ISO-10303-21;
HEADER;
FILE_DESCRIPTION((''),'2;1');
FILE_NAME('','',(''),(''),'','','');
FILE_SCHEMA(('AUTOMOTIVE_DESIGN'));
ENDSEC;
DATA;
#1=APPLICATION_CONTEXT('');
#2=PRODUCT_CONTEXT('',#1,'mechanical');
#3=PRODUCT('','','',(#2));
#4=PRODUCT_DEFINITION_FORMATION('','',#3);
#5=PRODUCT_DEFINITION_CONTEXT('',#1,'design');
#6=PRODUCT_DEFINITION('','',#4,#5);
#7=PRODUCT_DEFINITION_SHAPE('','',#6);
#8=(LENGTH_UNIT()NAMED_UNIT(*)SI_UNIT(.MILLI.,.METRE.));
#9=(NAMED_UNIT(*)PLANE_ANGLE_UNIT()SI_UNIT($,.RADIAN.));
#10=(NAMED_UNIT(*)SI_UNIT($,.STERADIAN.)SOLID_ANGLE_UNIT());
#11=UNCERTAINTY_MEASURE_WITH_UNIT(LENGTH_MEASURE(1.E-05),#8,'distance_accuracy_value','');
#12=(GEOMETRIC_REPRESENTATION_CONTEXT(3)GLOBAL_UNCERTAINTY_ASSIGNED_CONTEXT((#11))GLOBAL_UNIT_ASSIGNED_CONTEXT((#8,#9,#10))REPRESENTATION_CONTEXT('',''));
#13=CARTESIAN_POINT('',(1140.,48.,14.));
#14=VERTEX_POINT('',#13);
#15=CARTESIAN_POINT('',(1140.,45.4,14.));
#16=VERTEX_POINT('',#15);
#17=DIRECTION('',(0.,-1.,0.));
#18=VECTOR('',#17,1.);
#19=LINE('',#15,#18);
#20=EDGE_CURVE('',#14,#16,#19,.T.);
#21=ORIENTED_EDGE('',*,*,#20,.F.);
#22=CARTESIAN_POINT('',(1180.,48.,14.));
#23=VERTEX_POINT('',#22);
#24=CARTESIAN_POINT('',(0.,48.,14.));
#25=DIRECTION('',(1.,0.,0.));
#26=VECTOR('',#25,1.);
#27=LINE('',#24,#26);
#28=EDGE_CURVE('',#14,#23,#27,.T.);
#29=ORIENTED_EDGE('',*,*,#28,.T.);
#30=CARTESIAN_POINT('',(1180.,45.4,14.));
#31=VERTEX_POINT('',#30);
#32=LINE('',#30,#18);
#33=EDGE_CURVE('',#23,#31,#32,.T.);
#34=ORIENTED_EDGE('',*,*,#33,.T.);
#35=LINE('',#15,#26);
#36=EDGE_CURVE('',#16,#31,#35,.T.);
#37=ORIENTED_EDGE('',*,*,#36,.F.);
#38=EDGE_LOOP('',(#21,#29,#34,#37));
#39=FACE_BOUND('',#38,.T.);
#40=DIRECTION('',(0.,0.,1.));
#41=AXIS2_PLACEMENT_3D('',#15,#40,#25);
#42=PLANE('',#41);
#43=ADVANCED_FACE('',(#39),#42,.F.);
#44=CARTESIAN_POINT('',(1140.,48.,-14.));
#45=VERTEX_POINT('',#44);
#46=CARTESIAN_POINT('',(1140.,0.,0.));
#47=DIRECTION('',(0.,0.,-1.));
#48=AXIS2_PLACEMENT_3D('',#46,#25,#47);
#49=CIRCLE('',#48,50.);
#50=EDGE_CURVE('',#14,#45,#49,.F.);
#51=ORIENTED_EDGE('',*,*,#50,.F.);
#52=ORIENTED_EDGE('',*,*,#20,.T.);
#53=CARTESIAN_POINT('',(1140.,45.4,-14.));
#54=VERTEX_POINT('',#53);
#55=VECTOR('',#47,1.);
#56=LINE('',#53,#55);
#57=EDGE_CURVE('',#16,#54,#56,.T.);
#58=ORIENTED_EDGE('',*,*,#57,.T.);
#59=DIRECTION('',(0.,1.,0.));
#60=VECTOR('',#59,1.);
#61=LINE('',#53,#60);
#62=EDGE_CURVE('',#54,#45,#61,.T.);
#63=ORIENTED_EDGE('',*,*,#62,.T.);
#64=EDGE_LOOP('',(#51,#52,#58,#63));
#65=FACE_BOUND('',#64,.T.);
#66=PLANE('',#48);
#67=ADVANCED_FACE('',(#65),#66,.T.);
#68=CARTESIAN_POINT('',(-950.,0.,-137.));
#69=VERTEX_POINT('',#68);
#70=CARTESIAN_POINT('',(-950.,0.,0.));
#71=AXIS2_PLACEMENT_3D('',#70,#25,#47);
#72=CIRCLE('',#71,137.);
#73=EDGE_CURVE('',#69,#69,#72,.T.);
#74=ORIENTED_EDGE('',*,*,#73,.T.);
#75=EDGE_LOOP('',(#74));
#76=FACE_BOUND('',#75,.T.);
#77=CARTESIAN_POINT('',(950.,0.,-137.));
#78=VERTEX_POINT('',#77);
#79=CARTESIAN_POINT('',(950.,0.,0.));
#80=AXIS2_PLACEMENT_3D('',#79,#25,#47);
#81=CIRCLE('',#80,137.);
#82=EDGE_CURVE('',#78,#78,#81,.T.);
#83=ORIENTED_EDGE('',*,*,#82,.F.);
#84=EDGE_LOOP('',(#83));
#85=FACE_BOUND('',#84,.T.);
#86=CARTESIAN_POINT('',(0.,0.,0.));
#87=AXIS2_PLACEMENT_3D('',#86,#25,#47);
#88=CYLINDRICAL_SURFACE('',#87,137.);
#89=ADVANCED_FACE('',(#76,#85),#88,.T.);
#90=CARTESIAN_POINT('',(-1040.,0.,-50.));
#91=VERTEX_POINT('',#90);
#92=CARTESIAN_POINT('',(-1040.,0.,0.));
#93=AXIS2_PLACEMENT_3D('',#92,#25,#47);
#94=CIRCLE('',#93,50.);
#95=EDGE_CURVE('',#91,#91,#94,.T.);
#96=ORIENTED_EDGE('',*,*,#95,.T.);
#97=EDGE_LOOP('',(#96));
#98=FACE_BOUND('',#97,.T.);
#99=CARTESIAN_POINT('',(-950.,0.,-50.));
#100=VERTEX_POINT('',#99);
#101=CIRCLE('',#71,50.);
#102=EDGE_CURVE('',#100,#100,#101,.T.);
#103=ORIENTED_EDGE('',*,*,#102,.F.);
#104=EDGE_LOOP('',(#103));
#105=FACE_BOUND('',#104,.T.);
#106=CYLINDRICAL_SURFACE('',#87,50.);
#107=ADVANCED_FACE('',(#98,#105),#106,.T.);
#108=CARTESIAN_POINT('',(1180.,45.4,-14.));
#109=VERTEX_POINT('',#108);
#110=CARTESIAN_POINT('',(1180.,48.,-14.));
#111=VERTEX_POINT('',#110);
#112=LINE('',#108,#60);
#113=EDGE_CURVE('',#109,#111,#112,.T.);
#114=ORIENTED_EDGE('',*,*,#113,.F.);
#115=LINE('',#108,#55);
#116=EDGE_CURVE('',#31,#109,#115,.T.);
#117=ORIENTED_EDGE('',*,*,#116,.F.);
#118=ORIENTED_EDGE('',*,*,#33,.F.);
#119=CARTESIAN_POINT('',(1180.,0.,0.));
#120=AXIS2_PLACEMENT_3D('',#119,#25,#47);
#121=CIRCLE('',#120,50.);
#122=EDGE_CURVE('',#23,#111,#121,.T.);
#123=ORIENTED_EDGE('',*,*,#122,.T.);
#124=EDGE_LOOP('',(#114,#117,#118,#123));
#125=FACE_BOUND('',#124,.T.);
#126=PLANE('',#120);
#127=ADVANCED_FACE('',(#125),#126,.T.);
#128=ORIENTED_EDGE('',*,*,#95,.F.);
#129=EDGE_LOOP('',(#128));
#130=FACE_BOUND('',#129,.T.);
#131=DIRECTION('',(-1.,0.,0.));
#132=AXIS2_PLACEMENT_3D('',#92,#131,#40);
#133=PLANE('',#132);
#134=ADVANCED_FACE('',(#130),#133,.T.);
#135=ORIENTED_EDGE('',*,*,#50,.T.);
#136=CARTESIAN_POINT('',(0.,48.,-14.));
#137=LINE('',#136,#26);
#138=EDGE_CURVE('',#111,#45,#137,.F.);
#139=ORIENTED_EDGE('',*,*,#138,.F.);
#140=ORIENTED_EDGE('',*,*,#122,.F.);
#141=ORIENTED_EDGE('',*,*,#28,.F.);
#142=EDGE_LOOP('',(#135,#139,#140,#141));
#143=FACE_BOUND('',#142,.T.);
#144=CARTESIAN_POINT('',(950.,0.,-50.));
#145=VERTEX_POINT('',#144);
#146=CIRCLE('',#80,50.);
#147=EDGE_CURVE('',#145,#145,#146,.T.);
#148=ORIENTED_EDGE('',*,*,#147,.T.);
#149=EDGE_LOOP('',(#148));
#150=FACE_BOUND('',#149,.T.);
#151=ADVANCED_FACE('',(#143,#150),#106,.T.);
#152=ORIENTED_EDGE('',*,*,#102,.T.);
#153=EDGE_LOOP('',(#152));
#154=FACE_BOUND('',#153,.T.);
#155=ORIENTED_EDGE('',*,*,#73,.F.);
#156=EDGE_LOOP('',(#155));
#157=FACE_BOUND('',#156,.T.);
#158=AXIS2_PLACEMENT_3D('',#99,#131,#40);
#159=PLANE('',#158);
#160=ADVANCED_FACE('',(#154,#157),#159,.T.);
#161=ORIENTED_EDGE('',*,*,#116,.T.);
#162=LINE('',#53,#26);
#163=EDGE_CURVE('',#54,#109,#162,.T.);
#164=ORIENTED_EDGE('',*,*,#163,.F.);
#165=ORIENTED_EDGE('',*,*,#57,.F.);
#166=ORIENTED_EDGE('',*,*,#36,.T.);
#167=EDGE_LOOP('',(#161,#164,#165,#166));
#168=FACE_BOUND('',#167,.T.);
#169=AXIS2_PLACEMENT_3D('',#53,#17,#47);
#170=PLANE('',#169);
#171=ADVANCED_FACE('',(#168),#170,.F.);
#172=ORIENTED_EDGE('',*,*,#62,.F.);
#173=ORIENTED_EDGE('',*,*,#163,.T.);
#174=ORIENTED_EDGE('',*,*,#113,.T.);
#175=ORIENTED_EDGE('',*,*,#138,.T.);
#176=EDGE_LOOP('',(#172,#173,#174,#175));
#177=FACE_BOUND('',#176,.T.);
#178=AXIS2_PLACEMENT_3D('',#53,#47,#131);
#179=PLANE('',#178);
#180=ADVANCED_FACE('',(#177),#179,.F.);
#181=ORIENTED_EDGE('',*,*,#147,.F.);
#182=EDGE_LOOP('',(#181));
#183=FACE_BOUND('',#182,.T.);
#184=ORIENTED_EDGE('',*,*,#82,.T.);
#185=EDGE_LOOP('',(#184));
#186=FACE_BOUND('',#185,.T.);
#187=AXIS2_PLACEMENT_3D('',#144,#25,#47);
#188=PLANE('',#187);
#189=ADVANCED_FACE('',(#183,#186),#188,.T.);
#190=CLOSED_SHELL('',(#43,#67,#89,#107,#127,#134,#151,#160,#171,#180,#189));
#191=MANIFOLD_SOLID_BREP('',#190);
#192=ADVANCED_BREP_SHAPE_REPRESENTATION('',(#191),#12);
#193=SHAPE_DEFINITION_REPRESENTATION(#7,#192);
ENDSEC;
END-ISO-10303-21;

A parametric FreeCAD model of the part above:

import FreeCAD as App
import Part
import Sketcher

V = App.Vector
Q = App.Units.Quantity


def add_polygon(sketch, points):
    """Adds a closed chain of lines whose ends are joined by coincident constraints."""
    first, n = sketch.GeometryCount, len(points)
    for a, b in zip(points, points[1:] + points[:1]):
        sketch.addGeometry(Part.LineSegment(App.Vector(*a, 0), App.Vector(*b, 0)), False)
    for i in range(n):
        sketch.addConstraint(Sketcher.Constraint("Coincident", first + i, 2, first + (i + 1) % n, 1))

doc = App.newDocument("Part")
body = doc.addObject("PartDesign::Body", "Body")

# Sketch on XZ plane
sketch1 = body.newObject("Sketcher::SketchObject", "Sketch")
sketch1.AttachmentSupport = (doc.getObject("XZ_Plane"), [""])
sketch1.MapMode = "FlatFace"
add_polygon(sketch1, [(-1040, 0), (1180, 0), (1180, -50), (950, -50), (950, -137), (-950, -137), (-950, -50), (-1040, -50)])  # lines 0-7
sketch1.addConstraint(Sketcher.Constraint("Horizontal", 0))
sketch1.addConstraint(Sketcher.Constraint("Vertical", 1))
sketch1.addConstraint(Sketcher.Constraint("Horizontal", 2))
sketch1.addConstraint(Sketcher.Constraint("Vertical", 3))
sketch1.addConstraint(Sketcher.Constraint("Horizontal", 4))
sketch1.addConstraint(Sketcher.Constraint("Vertical", 5))
sketch1.addConstraint(Sketcher.Constraint("Horizontal", 6))
sketch1.addConstraint(Sketcher.Constraint("Vertical", 7))
sketch1.addConstraint(Sketcher.Constraint("Symmetric", 2, 2, 5, 2, -2))
sketch1.addConstraint(Sketcher.Constraint("PointOnObject", 0, 2, -1))
sketch1.addConstraint(Sketcher.Constraint("DistanceX", 0, 1, 0, 2, Q("2220 mm")))
sketch1.addConstraint(Sketcher.Constraint("DistanceX", 2, 2, 2, 1, Q("230 mm")))
sketch1.addConstraint(Sketcher.Constraint("DistanceX", 4, 2, 4, 1, Q("1900 mm")))
sketch1.addConstraint(Sketcher.Constraint("DistanceY", 1, 2, 1, 1, Q("50 mm")))
sketch1.addConstraint(Sketcher.Constraint("DistanceY", 3, 2, 3, 1, Q("87 mm")))
revolution = body.newObject("PartDesign::Revolution", "Revolution")
revolution.Profile = sketch1
revolution.ReferenceAxis = (sketch1, ["H_Axis"])
revolution.Angle = 360

# Sketch on YZ plane
sketch2 = body.newObject("Sketcher::SketchObject", "Sketch001")
sketch2.AttachmentSupport = (doc.getObject("YZ_Plane"), [""])
sketch2.MapMode = "FlatFace"
sketch2.AttachmentOffset = App.Placement(V(0, 0, 1180), App.Rotation())
add_polygon(sketch2, [(51, 14), (45, 14), (45, -14), (51, -14)])  # lines 0-3
sketch2.addConstraint(Sketcher.Constraint("Horizontal", 0))
sketch2.addConstraint(Sketcher.Constraint("Vertical", 1))
sketch2.addConstraint(Sketcher.Constraint("Horizontal", 2))
sketch2.addConstraint(Sketcher.Constraint("Vertical", 3))
sketch2.addConstraint(Sketcher.Constraint("DistanceY", 1, 2, 1, 1, Q("28 mm")))
sketch2.addConstraint(Sketcher.Constraint("DistanceX", 0, 2, 0, 1, Q("5.2 mm")))
sketch2.addConstraint(Sketcher.Constraint("DistanceY", -1, 1, 0, 2, Q("14 mm")))
sketch2.addConstraint(Sketcher.Constraint("DistanceX", -1, 1, 0, 2, Q("45.4 mm")))
pocket1 = body.newObject("PartDesign::Pocket", "Pocket")
pocket1.Profile = sketch2
pocket1.Length = 40

doc.recompute()
